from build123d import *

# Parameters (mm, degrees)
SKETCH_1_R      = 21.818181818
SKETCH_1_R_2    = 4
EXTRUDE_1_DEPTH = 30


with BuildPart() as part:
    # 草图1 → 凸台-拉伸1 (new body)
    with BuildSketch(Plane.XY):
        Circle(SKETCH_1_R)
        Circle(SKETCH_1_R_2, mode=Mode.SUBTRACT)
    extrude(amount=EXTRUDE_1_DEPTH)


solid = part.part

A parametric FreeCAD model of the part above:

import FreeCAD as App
import Part
import Sketcher

doc = App.newDocument("Part")
body = doc.addObject("PartDesign::Body", "Body")

sketch1 = body.newObject("Sketcher::SketchObject", "Sketch")
sketch1.AttachmentSupport = (doc.getObject("XY_Plane"), [""])
sketch1.MapMode = "FlatFace"
sketch1.addGeometry([
    Part.Circle(App.Vector(0, 0, 0), App.Vector(0, 0, 1), 21.8),
    Part.Circle(App.Vector(0, 0, 0), App.Vector(0, 0, 1), 4),
], False)
sketch1.addConstraint([
    Sketcher.Constraint("Coincident", 0, 3, -1, 1),
    Sketcher.Constraint("Coincident", 1, 3, -1, 1),
    Sketcher.Constraint("Diameter", 1, 8.0),
    Sketcher.Constraint("Diameter", 0, 43.636364),
])
pad1 = body.newObject("PartDesign::Pad", "Pad")
pad1.Profile = sketch1
pad1.Length = 30

doc.recompute()
